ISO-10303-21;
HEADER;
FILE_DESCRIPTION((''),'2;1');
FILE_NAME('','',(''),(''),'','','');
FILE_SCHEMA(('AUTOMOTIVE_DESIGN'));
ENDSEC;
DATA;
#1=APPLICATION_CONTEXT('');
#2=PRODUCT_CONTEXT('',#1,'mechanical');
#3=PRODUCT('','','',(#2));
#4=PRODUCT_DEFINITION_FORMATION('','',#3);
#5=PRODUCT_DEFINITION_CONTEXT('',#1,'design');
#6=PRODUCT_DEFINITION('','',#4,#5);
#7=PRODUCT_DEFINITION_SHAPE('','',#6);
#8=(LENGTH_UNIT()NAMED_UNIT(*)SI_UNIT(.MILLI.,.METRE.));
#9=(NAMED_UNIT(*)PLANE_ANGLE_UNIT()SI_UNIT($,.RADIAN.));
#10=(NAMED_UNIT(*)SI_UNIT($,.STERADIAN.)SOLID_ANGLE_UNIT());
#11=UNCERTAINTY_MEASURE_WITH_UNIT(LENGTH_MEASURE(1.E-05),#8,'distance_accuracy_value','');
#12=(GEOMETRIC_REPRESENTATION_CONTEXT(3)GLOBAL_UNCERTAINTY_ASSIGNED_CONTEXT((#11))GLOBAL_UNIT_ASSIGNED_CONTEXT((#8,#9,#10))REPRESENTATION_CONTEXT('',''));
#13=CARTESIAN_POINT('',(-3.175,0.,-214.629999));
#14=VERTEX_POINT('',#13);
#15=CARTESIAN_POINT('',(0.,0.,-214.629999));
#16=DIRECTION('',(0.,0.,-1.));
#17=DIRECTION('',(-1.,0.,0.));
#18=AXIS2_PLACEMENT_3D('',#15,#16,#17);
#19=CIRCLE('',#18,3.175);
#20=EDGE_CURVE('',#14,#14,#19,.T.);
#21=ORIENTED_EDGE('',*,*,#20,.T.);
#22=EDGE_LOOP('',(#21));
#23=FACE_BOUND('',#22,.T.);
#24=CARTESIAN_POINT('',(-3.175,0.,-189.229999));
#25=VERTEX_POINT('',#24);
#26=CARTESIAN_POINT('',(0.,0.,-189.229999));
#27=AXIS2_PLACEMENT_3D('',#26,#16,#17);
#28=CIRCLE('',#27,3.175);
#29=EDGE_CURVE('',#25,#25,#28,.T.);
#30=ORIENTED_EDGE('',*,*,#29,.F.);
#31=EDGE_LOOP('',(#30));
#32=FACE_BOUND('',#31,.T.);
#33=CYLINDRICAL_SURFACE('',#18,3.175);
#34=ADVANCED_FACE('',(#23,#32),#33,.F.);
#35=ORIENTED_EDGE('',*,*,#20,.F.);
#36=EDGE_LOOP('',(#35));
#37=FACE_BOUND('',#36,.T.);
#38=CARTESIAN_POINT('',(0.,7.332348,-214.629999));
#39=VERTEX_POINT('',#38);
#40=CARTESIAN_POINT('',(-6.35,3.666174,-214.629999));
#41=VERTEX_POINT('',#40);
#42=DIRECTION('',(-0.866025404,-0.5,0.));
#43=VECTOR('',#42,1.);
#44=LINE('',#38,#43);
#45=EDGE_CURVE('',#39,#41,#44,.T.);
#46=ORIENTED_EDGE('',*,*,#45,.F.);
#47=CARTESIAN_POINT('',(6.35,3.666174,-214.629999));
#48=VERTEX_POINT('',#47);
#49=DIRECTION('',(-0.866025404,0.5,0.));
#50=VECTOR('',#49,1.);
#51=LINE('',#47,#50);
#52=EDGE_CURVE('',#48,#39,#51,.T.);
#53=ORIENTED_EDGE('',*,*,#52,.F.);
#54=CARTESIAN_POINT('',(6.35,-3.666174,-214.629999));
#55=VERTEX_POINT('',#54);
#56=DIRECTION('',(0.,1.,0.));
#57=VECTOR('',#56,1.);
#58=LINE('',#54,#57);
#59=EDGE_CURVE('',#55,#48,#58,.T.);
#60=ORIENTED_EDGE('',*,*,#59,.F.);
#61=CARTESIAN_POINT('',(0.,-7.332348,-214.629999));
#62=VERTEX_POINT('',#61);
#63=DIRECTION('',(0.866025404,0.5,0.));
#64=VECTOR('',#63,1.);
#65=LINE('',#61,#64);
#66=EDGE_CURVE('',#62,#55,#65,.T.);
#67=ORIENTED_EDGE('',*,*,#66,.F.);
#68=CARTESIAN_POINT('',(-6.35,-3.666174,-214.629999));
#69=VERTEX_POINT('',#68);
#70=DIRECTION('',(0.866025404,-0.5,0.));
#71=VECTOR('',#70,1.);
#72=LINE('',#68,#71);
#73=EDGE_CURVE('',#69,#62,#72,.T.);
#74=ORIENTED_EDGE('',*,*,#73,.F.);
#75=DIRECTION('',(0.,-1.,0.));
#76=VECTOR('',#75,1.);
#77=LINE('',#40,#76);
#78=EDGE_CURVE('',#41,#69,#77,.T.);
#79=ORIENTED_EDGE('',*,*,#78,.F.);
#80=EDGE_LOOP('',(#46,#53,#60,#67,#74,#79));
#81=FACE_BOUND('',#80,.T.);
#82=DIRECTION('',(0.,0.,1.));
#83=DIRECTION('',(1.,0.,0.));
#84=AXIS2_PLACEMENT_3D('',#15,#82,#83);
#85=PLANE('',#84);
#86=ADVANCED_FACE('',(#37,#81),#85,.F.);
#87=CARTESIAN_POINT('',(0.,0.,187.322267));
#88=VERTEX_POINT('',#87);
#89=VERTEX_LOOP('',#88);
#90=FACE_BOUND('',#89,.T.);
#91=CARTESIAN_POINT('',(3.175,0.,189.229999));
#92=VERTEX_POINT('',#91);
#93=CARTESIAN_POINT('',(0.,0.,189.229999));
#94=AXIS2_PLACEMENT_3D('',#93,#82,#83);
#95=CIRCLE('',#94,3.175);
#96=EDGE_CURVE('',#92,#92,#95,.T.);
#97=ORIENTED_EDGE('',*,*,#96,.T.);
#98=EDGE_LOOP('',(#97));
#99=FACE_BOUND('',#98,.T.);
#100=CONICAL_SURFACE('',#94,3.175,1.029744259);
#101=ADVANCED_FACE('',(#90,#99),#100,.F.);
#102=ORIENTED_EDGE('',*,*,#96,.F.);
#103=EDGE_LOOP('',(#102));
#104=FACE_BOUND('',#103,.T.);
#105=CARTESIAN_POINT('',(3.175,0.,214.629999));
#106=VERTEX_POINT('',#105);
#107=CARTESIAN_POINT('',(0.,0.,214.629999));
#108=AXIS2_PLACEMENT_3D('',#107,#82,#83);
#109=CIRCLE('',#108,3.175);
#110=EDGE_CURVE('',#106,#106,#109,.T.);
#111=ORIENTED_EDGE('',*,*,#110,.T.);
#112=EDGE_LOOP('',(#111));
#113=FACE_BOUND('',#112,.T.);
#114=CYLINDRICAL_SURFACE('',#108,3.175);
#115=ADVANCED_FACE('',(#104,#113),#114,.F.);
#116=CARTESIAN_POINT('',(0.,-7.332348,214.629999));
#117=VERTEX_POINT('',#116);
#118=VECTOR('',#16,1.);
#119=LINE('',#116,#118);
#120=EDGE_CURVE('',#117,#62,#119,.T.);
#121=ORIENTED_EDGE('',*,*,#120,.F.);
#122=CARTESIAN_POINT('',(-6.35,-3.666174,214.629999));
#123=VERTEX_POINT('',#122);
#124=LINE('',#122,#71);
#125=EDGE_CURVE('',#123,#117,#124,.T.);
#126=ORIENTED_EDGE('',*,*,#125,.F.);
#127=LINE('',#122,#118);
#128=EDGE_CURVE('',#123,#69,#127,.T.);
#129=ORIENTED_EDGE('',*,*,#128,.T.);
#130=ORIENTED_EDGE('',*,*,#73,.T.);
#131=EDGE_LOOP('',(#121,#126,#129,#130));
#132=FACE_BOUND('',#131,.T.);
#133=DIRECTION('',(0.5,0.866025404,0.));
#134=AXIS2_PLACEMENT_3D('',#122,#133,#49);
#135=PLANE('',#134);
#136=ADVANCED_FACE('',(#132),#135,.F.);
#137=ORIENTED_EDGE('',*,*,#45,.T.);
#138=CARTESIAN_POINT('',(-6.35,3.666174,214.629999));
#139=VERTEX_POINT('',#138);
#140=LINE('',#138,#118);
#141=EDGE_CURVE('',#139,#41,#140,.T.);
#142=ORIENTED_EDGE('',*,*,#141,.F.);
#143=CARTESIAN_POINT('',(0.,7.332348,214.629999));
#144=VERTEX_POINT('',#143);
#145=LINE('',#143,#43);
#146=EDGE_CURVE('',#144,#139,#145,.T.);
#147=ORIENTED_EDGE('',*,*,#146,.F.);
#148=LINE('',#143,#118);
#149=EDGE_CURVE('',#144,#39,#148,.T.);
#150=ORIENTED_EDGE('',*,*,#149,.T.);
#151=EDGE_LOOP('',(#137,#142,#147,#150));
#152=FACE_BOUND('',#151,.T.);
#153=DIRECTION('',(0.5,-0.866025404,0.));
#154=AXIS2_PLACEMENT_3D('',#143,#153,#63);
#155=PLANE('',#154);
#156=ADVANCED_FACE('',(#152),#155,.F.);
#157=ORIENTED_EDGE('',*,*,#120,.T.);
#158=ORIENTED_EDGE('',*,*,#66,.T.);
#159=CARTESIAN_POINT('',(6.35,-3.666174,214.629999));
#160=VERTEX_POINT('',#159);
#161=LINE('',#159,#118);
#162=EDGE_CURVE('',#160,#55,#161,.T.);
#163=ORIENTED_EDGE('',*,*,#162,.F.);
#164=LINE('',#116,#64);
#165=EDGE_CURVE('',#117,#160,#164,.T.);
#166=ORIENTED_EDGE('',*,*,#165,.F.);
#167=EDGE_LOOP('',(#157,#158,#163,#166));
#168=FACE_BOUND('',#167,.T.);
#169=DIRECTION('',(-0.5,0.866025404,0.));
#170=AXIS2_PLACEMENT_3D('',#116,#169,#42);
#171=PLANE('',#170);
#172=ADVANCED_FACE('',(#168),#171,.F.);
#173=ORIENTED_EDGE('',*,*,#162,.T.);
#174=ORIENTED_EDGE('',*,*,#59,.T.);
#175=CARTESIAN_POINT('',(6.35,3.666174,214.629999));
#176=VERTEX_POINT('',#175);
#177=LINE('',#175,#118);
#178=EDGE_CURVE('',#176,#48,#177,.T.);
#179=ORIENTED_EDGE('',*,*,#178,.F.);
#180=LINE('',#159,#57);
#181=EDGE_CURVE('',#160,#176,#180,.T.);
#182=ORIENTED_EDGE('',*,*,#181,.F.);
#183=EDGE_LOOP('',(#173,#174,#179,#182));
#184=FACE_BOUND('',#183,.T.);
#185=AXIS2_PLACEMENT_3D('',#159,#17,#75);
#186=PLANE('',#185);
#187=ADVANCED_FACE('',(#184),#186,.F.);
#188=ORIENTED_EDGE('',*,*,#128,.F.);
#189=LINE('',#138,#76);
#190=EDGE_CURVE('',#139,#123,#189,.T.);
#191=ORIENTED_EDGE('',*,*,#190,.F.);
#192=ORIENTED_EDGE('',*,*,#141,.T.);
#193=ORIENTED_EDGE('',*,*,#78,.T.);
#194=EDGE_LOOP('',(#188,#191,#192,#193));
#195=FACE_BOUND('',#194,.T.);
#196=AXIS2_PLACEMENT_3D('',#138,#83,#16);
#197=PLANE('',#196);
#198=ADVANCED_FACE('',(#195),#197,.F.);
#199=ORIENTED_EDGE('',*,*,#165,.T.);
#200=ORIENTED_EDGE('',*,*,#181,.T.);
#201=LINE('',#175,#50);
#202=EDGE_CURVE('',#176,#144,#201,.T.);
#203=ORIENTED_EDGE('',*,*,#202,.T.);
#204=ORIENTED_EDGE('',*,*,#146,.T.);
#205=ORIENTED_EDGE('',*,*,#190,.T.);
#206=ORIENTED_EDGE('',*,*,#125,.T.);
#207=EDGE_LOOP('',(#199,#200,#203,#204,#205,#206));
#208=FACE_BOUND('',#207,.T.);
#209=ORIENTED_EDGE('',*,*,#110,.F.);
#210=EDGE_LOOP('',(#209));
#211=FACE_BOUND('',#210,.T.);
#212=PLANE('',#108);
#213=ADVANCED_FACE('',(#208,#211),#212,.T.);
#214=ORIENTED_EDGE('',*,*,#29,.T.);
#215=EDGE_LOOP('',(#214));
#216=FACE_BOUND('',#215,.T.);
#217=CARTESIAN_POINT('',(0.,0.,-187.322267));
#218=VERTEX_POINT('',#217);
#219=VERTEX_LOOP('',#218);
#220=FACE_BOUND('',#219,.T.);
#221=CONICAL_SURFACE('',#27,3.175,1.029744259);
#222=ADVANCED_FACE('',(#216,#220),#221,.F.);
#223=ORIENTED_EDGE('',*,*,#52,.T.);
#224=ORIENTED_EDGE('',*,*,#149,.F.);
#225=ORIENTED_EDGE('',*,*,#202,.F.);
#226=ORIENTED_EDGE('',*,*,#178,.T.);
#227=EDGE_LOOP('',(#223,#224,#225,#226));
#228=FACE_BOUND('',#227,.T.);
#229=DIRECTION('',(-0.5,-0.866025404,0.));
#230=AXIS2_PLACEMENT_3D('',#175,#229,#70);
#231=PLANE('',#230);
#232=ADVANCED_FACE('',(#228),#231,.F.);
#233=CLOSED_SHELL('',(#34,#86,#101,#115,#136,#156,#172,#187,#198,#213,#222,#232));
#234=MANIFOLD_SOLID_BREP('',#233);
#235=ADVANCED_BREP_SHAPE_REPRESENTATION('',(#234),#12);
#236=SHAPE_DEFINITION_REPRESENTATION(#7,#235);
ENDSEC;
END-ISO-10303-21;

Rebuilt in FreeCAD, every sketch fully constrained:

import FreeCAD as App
import Part
import Sketcher
from FreeCAD import Vector
Q = App.Units.Quantity


def add_polygon(sketch, points):
    """Adds a closed chain of lines whose ends are joined by coincident constraints."""
    first, n = sketch.GeometryCount, len(points)
    for a, b in zip(points, points[1:] + points[:1]):
        sketch.addGeometry(Part.LineSegment(App.Vector(*a, 0), App.Vector(*b, 0)), False)
    for i in range(n):
        sketch.addConstraint(Sketcher.Constraint("Coincident", first + i, 2, first + (i + 1) % n, 1))

doc = App.newDocument("Part")
body = doc.addObject("PartDesign::Body", "Body")

# Sketch on XY plane
sketch1 = body.newObject("Sketcher::SketchObject", "Sketch")
sketch1.AttachmentSupport = (doc.getObject("XY_Plane"), [""])
sketch1.MapMode = "FlatFace"
add_polygon(sketch1, [(-6, -4), (0, -7), (6, -4), (6, 4), (0, 7), (-6, 4)])  # lines 0-5
sketch1.addConstraint(Sketcher.Constraint("Vertical", 2))
sketch1.addConstraint(Sketcher.Constraint("Vertical", 5))
sketch1.addConstraint(Sketcher.Constraint("Symmetric", 0, 2, 3, 2, -1, 1))
sketch1.addConstraint(Sketcher.Constraint("Symmetric", 1, 2, 4, 2, -1, 1))
sketch1.addConstraint(Sketcher.Constraint("PointOnObject", 0, 2, -2))
sketch1.addConstraint(Sketcher.Constraint("Parallel", 0, 3))
sketch1.addConstraint(Sketcher.Constraint("Horizontal", 2, 2, 4, 2))
sketch1.addConstraint(Sketcher.Constraint("Angle", 0, Q("-30 deg")))
sketch1.addConstraint(Sketcher.Constraint("DistanceX", 4, 2, 2, 2, Q("0.5 in")))
sketch1.addConstraint(Sketcher.Constraint("DistanceY", 2, 1, 2, 2, 7.332348))
pad1 = body.newObject("PartDesign::Pad", "Pad")
pad1.Profile = sketch1
pad1.Type = "TwoLengths"
pad1.Length = Q("8.45 in")
pad1.Length2 = Q("8.45 in")

# Sketch on XY plane
sketch2 = body.newObject("Sketcher::SketchObject", "Sketch001")
sketch2.AttachmentSupport = (doc.getObject("XY_Plane"), [""])
sketch2.MapMode = "FlatFace"
sketch2.AttachmentOffset = App.Placement(Vector(0, 0, 8.45 * 25.4), App.Rotation())
sketch2.addGeometry(Part.Circle(Vector(0, 0, 0), Vector(0, 0, 1), 3.2), False)
sketch2.addConstraint(Sketcher.Constraint("Coincident", 0, 3, -1, 1))
sketch2.addConstraint(Sketcher.Constraint("Diameter", 0, Q("0.25 in")))
doc.recompute()
hole = body.newObject("PartDesign::Hole", "Hole")
hole.Profile = sketch2
hole.ThreadType = "None"
hole.Diameter = Q("0.25 in")
hole.DepthType = "Dimension"
hole.Depth = Q("1 in")
hole.DrillPoint = "Angled"
hole.DrillPointAngle = 118

# Sketch on XY plane
sketch3 = body.newObject("Sketcher::SketchObject", "Sketch002")
sketch3.AttachmentSupport = (doc.getObject("XY_Plane"), [""])
sketch3.MapMode = "FlatFace"
sketch3.AttachmentOffset = App.Placement(Vector(0, 0, -8.45 * 25.4), App.Rotation())
sketch3.addGeometry(Part.Circle(Vector(0, 0, 0), Vector(0, 0, 1), 3.2), False)
sketch3.addConstraint(Sketcher.Constraint("Coincident", 0, 3, -1, 1))
sketch3.addConstraint(Sketcher.Constraint("Diameter", 0, Q("0.25 in")))
doc.recompute()
hole2 = body.newObject("PartDesign::Hole", "Hole001")
hole2.Profile = sketch3
hole2.ThreadType = "None"
hole2.Diameter = Q("0.25 in")
hole2.DepthType = "Dimension"
hole2.Depth = Q("1 in")
hole2.DrillPoint = "Angled"
hole2.DrillPointAngle = 118
hole2.Reversed = True

doc.recompute()
